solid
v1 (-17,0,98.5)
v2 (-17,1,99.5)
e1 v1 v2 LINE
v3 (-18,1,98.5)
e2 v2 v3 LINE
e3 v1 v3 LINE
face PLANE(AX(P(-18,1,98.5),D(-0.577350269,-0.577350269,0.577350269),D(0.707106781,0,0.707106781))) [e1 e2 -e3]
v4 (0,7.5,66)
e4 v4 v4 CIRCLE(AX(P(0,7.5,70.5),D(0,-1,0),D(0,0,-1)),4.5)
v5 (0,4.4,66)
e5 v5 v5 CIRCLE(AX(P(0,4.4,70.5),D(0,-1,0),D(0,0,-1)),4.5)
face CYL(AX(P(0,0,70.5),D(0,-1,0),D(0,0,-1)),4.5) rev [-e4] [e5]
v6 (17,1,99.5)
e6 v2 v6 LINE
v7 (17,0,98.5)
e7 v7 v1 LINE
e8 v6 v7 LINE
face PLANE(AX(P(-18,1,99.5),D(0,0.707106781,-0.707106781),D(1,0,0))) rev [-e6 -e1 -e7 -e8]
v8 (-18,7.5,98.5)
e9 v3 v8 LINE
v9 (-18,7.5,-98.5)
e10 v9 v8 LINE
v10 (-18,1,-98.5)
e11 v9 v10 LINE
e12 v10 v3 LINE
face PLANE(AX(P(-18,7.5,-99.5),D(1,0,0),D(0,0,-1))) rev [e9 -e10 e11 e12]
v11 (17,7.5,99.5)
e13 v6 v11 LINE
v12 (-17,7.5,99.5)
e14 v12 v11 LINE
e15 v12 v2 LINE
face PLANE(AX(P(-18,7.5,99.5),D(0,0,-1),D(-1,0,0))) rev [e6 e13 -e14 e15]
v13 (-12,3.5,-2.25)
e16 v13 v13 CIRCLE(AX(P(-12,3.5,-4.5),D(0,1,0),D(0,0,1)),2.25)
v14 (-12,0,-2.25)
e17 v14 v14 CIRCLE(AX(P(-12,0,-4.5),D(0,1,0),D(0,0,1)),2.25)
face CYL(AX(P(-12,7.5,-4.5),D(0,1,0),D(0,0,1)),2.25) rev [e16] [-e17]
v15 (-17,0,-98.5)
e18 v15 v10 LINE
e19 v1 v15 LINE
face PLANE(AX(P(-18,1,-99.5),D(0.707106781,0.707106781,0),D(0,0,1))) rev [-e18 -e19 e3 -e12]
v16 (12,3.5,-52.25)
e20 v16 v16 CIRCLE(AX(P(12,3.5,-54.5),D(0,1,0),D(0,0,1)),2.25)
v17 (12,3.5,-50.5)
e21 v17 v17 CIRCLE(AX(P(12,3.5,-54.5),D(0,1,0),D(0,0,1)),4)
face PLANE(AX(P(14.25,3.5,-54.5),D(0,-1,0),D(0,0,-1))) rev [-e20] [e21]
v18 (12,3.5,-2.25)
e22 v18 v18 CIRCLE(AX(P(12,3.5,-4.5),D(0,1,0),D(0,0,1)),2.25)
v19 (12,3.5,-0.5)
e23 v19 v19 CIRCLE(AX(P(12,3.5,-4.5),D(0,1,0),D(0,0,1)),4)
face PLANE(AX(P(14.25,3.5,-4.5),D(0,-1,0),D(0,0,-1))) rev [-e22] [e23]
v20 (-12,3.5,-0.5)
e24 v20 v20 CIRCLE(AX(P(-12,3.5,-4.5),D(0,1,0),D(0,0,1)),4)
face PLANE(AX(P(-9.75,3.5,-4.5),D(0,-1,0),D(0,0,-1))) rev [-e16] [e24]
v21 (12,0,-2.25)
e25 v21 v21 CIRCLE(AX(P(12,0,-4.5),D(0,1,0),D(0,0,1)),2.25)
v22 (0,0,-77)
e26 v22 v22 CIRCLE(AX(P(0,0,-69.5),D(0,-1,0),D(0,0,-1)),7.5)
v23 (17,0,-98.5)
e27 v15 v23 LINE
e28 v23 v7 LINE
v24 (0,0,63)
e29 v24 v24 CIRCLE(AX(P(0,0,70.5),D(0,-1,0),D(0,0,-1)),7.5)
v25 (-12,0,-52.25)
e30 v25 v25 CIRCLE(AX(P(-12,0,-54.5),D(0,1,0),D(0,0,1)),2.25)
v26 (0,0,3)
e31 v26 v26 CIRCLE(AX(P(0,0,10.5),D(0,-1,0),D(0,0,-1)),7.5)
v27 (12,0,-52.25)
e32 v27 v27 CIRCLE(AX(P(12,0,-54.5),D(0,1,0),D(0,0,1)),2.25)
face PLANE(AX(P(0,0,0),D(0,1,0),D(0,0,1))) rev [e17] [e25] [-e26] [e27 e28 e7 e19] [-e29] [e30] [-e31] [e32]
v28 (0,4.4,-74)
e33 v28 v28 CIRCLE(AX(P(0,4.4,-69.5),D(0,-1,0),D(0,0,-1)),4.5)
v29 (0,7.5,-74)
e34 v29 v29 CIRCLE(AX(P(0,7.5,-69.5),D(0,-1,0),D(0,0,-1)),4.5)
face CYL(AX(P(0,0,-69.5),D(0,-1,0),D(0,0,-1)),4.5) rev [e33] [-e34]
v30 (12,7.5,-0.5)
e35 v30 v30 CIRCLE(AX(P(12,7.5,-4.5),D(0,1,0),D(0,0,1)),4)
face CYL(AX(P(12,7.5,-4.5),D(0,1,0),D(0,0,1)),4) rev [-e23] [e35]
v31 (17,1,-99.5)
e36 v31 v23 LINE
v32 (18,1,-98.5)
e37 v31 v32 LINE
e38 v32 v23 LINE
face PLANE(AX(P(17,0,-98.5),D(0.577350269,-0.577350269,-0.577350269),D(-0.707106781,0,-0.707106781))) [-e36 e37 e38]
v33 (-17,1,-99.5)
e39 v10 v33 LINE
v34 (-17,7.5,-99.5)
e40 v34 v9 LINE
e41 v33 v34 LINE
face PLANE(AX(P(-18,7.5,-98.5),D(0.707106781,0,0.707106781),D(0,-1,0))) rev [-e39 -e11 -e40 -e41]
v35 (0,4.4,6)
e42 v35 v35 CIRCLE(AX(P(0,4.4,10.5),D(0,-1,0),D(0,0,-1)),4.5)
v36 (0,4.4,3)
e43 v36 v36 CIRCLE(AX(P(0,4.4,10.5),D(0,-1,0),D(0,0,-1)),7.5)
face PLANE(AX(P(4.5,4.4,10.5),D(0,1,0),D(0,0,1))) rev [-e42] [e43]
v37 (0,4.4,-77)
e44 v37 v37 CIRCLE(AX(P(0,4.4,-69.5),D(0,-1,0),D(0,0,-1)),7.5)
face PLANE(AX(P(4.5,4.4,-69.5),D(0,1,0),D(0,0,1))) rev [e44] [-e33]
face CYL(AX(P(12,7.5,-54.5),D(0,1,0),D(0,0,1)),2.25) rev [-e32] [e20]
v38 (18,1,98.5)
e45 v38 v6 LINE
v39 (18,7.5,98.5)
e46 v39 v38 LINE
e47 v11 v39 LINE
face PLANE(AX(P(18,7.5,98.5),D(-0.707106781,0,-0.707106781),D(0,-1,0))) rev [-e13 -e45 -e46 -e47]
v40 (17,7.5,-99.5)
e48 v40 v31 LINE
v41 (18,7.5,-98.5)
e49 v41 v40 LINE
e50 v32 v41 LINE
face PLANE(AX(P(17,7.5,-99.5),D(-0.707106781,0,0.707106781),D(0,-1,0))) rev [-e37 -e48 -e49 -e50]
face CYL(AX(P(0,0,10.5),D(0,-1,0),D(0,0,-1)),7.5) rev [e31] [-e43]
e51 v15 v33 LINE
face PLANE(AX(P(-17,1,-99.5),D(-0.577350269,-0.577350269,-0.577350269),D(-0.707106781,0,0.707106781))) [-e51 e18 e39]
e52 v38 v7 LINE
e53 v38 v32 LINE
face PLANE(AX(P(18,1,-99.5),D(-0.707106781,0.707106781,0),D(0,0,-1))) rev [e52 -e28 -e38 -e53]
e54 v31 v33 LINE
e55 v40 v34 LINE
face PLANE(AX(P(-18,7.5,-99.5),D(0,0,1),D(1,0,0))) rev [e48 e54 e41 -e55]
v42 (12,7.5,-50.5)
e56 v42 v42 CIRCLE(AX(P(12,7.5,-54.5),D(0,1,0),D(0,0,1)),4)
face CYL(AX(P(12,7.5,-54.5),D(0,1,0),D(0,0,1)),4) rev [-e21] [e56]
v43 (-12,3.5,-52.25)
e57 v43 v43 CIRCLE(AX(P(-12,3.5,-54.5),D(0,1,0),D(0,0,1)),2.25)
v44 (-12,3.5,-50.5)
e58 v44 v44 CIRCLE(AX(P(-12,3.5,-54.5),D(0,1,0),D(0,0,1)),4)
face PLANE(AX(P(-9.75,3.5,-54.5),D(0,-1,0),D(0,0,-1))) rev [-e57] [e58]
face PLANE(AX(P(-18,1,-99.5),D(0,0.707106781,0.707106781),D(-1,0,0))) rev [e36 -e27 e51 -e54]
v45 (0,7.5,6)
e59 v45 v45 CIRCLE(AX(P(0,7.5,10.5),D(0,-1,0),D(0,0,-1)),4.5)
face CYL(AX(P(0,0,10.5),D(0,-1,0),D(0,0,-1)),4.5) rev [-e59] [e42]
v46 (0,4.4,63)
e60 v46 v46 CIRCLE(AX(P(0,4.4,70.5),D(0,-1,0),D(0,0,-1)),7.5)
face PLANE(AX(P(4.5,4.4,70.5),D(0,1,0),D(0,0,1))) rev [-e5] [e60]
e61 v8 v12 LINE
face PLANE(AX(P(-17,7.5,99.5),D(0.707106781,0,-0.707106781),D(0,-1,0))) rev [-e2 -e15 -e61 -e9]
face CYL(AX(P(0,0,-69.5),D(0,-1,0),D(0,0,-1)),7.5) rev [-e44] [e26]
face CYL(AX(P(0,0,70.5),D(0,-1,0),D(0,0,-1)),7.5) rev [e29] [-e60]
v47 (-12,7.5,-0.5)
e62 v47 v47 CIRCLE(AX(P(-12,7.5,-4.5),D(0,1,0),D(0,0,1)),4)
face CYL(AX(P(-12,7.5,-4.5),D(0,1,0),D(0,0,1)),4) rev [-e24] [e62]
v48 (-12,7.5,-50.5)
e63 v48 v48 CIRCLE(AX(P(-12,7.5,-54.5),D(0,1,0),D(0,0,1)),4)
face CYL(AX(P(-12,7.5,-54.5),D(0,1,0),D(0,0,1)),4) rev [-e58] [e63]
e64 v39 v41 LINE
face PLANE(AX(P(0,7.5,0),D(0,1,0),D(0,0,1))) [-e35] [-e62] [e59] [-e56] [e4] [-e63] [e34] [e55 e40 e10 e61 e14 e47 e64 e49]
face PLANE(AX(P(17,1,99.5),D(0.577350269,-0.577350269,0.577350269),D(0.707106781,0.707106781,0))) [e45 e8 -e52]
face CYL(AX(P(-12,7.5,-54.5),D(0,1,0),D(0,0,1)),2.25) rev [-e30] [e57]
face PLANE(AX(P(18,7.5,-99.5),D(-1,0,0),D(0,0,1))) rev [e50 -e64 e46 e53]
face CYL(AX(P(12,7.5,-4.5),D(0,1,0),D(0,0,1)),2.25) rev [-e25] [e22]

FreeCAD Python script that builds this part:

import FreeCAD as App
import Part
import Sketcher
Q = App.Units.Quantity


def edges_at(feature, points):
    """Names of the edges that pass closest to the given points."""
    edges = feature.Shape.Edges
    near = lambda p: min(range(len(edges)), key=lambda i: edges[i].distToShape(Part.Vertex(*p))[0])
    return sorted({f"Edge{near(p) + 1}" for p in points})


def add_polygon(sketch, points):
    """Adds a closed chain of lines whose ends are joined by coincident constraints."""
    first, n = sketch.GeometryCount, len(points)
    for a, b in zip(points, points[1:] + points[:1]):
        sketch.addGeometry(Part.LineSegment(App.Vector(*a, 0), App.Vector(*b, 0)), False)
    for i in range(n):
        sketch.addConstraint(Sketcher.Constraint("Coincident", first + i, 2, first + (i + 1) % n, 1))

doc = App.newDocument("Part")
params = doc.addObject("Spreadsheet::Sheet", "Params")
for row, (alias, value) in enumerate([
    ("sketch1_width", "36 mm"),
    ("sketch1_height", "199 mm"),
    ("pad1_length", "7.5 mm"),
    ("sketch2_diameter", "4.5 mm"),
    ("hole_diameter", "4.5 mm"),
    ("hole_cbore_diameter", "8 mm"),
    ("hole_cbore_depth", "4 mm"),
    ("chamfer_size", "1 mm"),
    ("sketch3_diameter", "9 mm"),
    ("hole2_diameter", "9 mm"),
    ("hole2_cbore_diameter", "15 mm"),
    ("hole2_cbore_depth", "4.4 mm"),
], start=1):
    params.set(f"A{row}", alias)
    params.set(f"B{row}", "=" + value)
    params.setAlias(f"B{row}", alias)

body = doc.addObject("PartDesign::Body", "Body")

# Sketch on XZ plane
sketch1 = body.newObject("Sketcher::SketchObject", "Sketch")
sketch1.AttachmentSupport = (doc.getObject("XZ_Plane"), [""])
sketch1.MapMode = "FlatFace"
add_polygon(sketch1, [(-18, -100), (-18, 100), (18, 100), (18, -100)])  # lines 0-3
sketch1.addConstraint(Sketcher.Constraint("Vertical", 0))
sketch1.addConstraint(Sketcher.Constraint("Horizontal", 1))
sketch1.addConstraint(Sketcher.Constraint("Vertical", 2))
sketch1.addConstraint(Sketcher.Constraint("Horizontal", 3))
sketch1.addConstraint(Sketcher.Constraint("Symmetric", 0, 2, 2, 2, -1, 1))
sketch1.addConstraint(Sketcher.Constraint("DistanceX", 1, 1, 1, 2, Q("36 mm")))
sketch1.addConstraint(Sketcher.Constraint("DistanceY", 0, 1, 0, 2, Q("199 mm")))
sketch1.setExpression("Constraints[9]", "Params.sketch1_width")
sketch1.setExpression("Constraints[10]", "Params.sketch1_height")
pad1 = body.newObject("PartDesign::Pad", "Pad")
pad1.Profile = sketch1
pad1.setExpression("Length", "Params.pad1_length")
pad1.Reversed = True

# Sketch on XZ plane
sketch2 = body.newObject("Sketcher::SketchObject", "Sketch001")
sketch2.AttachmentSupport = (doc.getObject("XZ_Plane"), [""])
sketch2.MapMode = "FlatFace"
sketch2.AttachmentOffset = App.Placement(App.Vector(0, 0, -7.5), App.Rotation())
sketch2.addGeometry(Part.Circle(App.Vector(-12, -54.5, 0), App.Vector(0, 0, 1), 2.2), False)
sketch2.addGeometry(Part.Circle(App.Vector(12, -54.5, 0), App.Vector(0, 0, 1), 2.2), False)
sketch2.addGeometry(Part.Circle(App.Vector(12, -4.5, 0), App.Vector(0, 0, 1), 2.2), False)
sketch2.addGeometry(Part.Circle(App.Vector(-12, -4.5, 0), App.Vector(0, 0, 1), 2.2), False)
sketch2.addConstraint(Sketcher.Constraint("Equal", 0, 1))
sketch2.addConstraint(Sketcher.Constraint("Equal", 1, 2))
sketch2.addConstraint(Sketcher.Constraint("Equal", 2, 3))
sketch2.addConstraint(Sketcher.Constraint("Symmetric", 0, 3, 1, 3, -2))
sketch2.addConstraint(Sketcher.Constraint("Symmetric", 2, 3, 3, 3, -2))
sketch2.addConstraint(Sketcher.Constraint("Vertical", 1, 3, 2, 3))
sketch2.addConstraint(Sketcher.Constraint("Diameter", 0, Q("4.5 mm")))
sketch2.addConstraint(Sketcher.Constraint("DistanceX", 0, 3, -1, 1, Q("12 mm")))
sketch2.addConstraint(Sketcher.Constraint("DistanceY", 1, 3, 2, 3, Q("50 mm")))
sketch2.addConstraint(Sketcher.Constraint("DistanceY", 0, 3, -1, 1, Q("54.5 mm")))
sketch2.setExpression("Constraints[6]", "Params.sketch2_diameter")
doc.recompute()
hole = body.newObject("PartDesign::Hole", "Hole")
hole.Profile = sketch2
hole.ThreadType = "None"
hole.setExpression("Diameter", "Params.hole_diameter")
hole.DepthType = "ThroughAll"
hole.HoleCutType = "Counterbore"
hole.setExpression("HoleCutDiameter", "Params.hole_cbore_diameter")
hole.setExpression("HoleCutDepth", "Params.hole_cbore_depth")
hole.Reversed = True
doc.recompute()

chamfer = body.newObject("PartDesign::Chamfer", "Chamfer")
chamfer.Base = (hole, edges_at(hole, [
    (0, 0, 99.5),
    (-18, 0, 0),
    (0, 0, -99.5),
    (18, 0, 0),
    (18, 3.75, 99.5),
    (-18, 3.75, 99.5),
    (-18, 3.75, -99.5),
    (18, 3.75, -99.5),
]))
chamfer.setExpression("Size", "Params.chamfer_size")

# Sketch on XZ plane
sketch3 = body.newObject("Sketcher::SketchObject", "Sketch002")
sketch3.AttachmentSupport = (doc.getObject("XZ_Plane"), [""])
sketch3.MapMode = "FlatFace"
sketch3.addGeometry(Part.Circle(App.Vector(0, -69.5, 0), App.Vector(0, 0, 1), 4.5), False)
sketch3.addGeometry(Part.Circle(App.Vector(0, 10.5, 0), App.Vector(0, 0, 1), 4.5), False)
sketch3.addGeometry(Part.Circle(App.Vector(0, 70.5, 0), App.Vector(0, 0, 1), 4.5), False)
sketch3.addConstraint(Sketcher.Constraint("Equal", 0, 1))
sketch3.addConstraint(Sketcher.Constraint("Equal", 1, 2))
sketch3.addConstraint(Sketcher.Constraint("PointOnObject", 0, 3, -2))
sketch3.addConstraint(Sketcher.Constraint("PointOnObject", 1, 3, -2))
sketch3.addConstraint(Sketcher.Constraint("PointOnObject", 2, 3, -2))
sketch3.addConstraint(Sketcher.Constraint("Diameter", 0, Q("9 mm")))
sketch3.addConstraint(Sketcher.Constraint("DistanceY", 0, 3, 1, 3, Q("80 mm")))
sketch3.addConstraint(Sketcher.Constraint("DistanceY", 1, 3, 2, 3, Q("60 mm")))
sketch3.addConstraint(Sketcher.Constraint("DistanceY", 0, 3, -1, 1, Q("69.5 mm")))
sketch3.setExpression("Constraints[5]", "Params.sketch3_diameter")
doc.recompute()
hole2 = body.newObject("PartDesign::Hole", "Hole001")
hole2.Profile = sketch3
hole2.ThreadType = "None"
hole2.setExpression("Diameter", "Params.hole2_diameter")
hole2.DepthType = "ThroughAll"
hole2.HoleCutType = "Counterbore"
hole2.setExpression("HoleCutDiameter", "Params.hole2_cbore_diameter")
hole2.setExpression("HoleCutDepth", "Params.hole2_cbore_depth")

doc.recompute()
